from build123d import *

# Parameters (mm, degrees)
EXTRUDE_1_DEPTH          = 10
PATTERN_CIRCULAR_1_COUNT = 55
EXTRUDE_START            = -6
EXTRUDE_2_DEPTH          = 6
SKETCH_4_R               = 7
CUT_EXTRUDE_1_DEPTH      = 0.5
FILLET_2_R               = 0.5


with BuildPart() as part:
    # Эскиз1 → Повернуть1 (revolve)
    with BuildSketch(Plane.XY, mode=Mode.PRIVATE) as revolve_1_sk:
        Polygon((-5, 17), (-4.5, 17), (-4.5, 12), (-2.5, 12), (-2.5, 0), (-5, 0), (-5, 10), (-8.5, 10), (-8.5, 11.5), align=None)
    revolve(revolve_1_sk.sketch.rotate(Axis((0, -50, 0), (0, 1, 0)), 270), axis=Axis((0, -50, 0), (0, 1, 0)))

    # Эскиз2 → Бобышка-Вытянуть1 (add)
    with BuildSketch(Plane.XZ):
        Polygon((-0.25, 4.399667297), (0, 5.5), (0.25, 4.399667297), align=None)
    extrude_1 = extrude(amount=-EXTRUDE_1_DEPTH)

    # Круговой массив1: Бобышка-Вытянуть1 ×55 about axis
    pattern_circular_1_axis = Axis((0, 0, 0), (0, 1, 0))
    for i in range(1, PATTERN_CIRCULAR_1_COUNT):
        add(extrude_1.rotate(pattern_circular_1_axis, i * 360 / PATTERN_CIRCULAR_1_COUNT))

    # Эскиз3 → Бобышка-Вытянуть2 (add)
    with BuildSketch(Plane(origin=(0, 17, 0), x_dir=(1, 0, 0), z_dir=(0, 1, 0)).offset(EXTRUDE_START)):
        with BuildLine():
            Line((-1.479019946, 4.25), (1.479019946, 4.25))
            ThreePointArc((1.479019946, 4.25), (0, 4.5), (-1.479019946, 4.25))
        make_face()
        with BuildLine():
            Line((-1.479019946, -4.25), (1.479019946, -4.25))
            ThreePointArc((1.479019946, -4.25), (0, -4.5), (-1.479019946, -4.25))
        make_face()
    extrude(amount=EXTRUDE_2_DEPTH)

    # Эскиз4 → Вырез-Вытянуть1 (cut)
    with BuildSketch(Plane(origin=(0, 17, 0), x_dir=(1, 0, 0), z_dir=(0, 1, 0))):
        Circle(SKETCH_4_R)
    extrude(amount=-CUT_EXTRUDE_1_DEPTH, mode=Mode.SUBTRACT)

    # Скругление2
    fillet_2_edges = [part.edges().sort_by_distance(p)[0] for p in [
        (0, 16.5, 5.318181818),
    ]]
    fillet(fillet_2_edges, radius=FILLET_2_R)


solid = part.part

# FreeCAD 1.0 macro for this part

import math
import FreeCAD as App
import Part
import Sketcher
Q = App.Units.Quantity


def edges_at(feature, points):
    """Names of the edges that pass closest to the given points."""
    edges = feature.Shape.Edges
    near = lambda p: min(range(len(edges)), key=lambda i: edges[i].distToShape(Part.Vertex(*p))[0])
    return sorted({f"Edge{near(p) + 1}" for p in points})

doc = App.newDocument("Part")
body = doc.addObject("PartDesign::Body", "Body")

# Sketch on XY plane
sketch1 = body.newObject("Sketcher::SketchObject", "Sketch")
sketch1.AttachmentSupport = (doc.getObject("XY_Plane"), [""])
sketch1.MapMode = "FlatFace"
sketch1.addGeometry(Part.LineSegment(App.Vector(-4.5, 17, 0), App.Vector(-5, 17, 0)), False)
sketch1.addGeometry(Part.LineSegment(App.Vector(-5, 17, 0), App.Vector(-8.5, 11.5, 0)), False)
sketch1.addGeometry(Part.LineSegment(App.Vector(-8.5, 11.5, 0), App.Vector(-8.5, 10, 0)), False)
sketch1.addGeometry(Part.LineSegment(App.Vector(-8.5, 10, 0), App.Vector(-5, 10, 0)), False)
sketch1.addGeometry(Part.LineSegment(App.Vector(-5, 10, 0), App.Vector(-5, 0, 0)), False)
sketch1.addGeometry(Part.LineSegment(App.Vector(-5, 0, 0), App.Vector(-2.5, 0, 0)), False)
sketch1.addGeometry(Part.LineSegment(App.Vector(-2.5, 0, 0), App.Vector(-2.5, 12, 0)), False)
sketch1.addGeometry(Part.LineSegment(App.Vector(-2.5, 12, 0), App.Vector(-4.5, 12, 0)), False)
sketch1.addGeometry(Part.LineSegment(App.Vector(-4.5, 12, 0), App.Vector(-4.5, 17, 0)), False)
sketch1.addConstraint(Sketcher.Constraint("Coincident", 0, 2, 1, 1))
sketch1.addConstraint(Sketcher.Constraint("Coincident", 1, 2, 2, 1))
sketch1.addConstraint(Sketcher.Constraint("Coincident", 2, 2, 3, 1))
sketch1.addConstraint(Sketcher.Constraint("Coincident", 3, 2, 4, 1))
sketch1.addConstraint(Sketcher.Constraint("Coincident", 4, 2, 5, 1))
sketch1.addConstraint(Sketcher.Constraint("Coincident", 5, 2, 6, 1))
sketch1.addConstraint(Sketcher.Constraint("Coincident", 6, 2, 7, 1))
sketch1.addConstraint(Sketcher.Constraint("Coincident", 7, 2, 8, 1))
sketch1.addConstraint(Sketcher.Constraint("Coincident", 8, 2, 0, 1))
sketch1.addConstraint(Sketcher.Constraint("Horizontal", 0))
sketch1.addConstraint(Sketcher.Constraint("Vertical", 2))
sketch1.addConstraint(Sketcher.Constraint("Horizontal", 3))
sketch1.addConstraint(Sketcher.Constraint("Vertical", 4))
sketch1.addConstraint(Sketcher.Constraint("Horizontal", 5))
sketch1.addConstraint(Sketcher.Constraint("Vertical", 6))
sketch1.addConstraint(Sketcher.Constraint("Horizontal", 7))
sketch1.addConstraint(Sketcher.Constraint("Vertical", 8))
sketch1.addConstraint(Sketcher.Constraint("PointOnObject", 4, 2, -1))
sketch1.addConstraint(Sketcher.Constraint("Vertical", 0, 2, 3, 2))
sketch1.addConstraint(Sketcher.Constraint("DistanceX", 7, 2, 7, 1, Q("2 mm")))
sketch1.addConstraint(Sketcher.Constraint("DistanceY", 4, 2, 4, 1, Q("10 mm")))
sketch1.addConstraint(Sketcher.Constraint("DistanceY", 6, 1, 6, 2, Q("12 mm")))
sketch1.addConstraint(Sketcher.Constraint("DistanceY", 8, 1, 8, 2, Q("5 mm")))
sketch1.addConstraint(Sketcher.Constraint("DistanceX", 0, 2, 0, 1, Q("0.5 mm")))
sketch1.addConstraint(Sketcher.Constraint("DistanceX", 3, 1, 3, 2, Q("3.5 mm")))
sketch1.addConstraint(Sketcher.Constraint("DistanceY", 2, 2, 2, 1, Q("1.5 mm")))
sketch1.addConstraint(Sketcher.Constraint("DistanceX", 0, 2, -1, 1, Q("5 mm")))
revolution = body.newObject("PartDesign::Revolution", "Revolution")
revolution.Profile = sketch1
revolution.ReferenceAxis = (sketch1, ["V_Axis"])
revolution.Angle = 360

# Sketch on XZ plane
sketch2 = body.newObject("Sketcher::SketchObject", "Sketch001")
sketch2.AttachmentSupport = (doc.getObject("XZ_Plane"), [""])
sketch2.MapMode = "FlatFace"
sketch2.addGeometry(Part.LineSegment(App.Vector(0, 5.5, 0), App.Vector(-0.2, 4.4, 0)), False)
sketch2.addGeometry(Part.LineSegment(App.Vector(-0.2, 4.4, 0), App.Vector(0.2, 4.4, 0)), False)
sketch2.addGeometry(Part.LineSegment(App.Vector(0.2, 4.4, 0), App.Vector(0, 5.5, 0)), False)
sketch2.addConstraint(Sketcher.Constraint("Coincident", 0, 2, 1, 1))
sketch2.addConstraint(Sketcher.Constraint("Coincident", 1, 2, 2, 1))
sketch2.addConstraint(Sketcher.Constraint("Coincident", 2, 2, 0, 1))
sketch2.addConstraint(Sketcher.Constraint("Horizontal", 1))
sketch2.addConstraint(Sketcher.Constraint("PointOnObject", 2, 2, -2))
sketch2.addConstraint(Sketcher.Constraint("Equal", 0, 2))
sketch2.addConstraint(Sketcher.Constraint("DistanceX", 1, 1, 1, 2, Q("0.5 mm")))
sketch2.addConstraint(Sketcher.Constraint("DistanceY", -1, 1, 2, 2, Q("5.5 mm")))
sketch2.addConstraint(Sketcher.Constraint("Distance", 0, Q("1.128376 mm")))
pad1 = body.newObject("PartDesign::Pad", "Pad")
pad1.Profile = sketch2
pad1.Length = 10
pad1.Reversed = True
doc.recompute()

polarpattern = body.newObject("PartDesign::PolarPattern", "PolarPattern")
polarpattern.Originals = [pad1]
polarpattern.Axis = (doc.getObject("Y_Axis"), [""])
polarpattern.Angle = 360
polarpattern.Occurrences = 55
body.Tip = polarpattern

# Sketch on XZ plane
sketch3 = body.newObject("Sketcher::SketchObject", "Sketch002")
sketch3.AttachmentSupport = (doc.getObject("XZ_Plane"), [""])
sketch3.MapMode = "FlatFace"
sketch3.AttachmentOffset = App.Placement(App.Vector(0, 0, -11), App.Rotation())
sketch3.addGeometry(Part.LineSegment(App.Vector(-1.5, -4.2, 0), App.Vector(1.5, -4.2, 0)), False)
sketch3.addGeometry(Part.ArcOfCircle(Part.Circle(App.Vector(0, 0, 0), App.Vector(0, 0, 1), 4.5), math.radians(-109), math.radians(-71)), False)
sketch3.addGeometry(Part.LineSegment(App.Vector(1.5, 4.2, 0), App.Vector(-1.5, 4.2, 0)), False)
sketch3.addGeometry(Part.ArcOfCircle(Part.Circle(App.Vector(0, 0, 0), App.Vector(0, 0, 1), 4.5), math.radians(71), math.radians(109)), False)
sketch3.addConstraint(Sketcher.Constraint("Coincident", 0, 1, 1, 1))
sketch3.addConstraint(Sketcher.Constraint("Coincident", 1, 2, 0, 2))
sketch3.addConstraint(Sketcher.Constraint("Coincident", 2, 1, 3, 1))
sketch3.addConstraint(Sketcher.Constraint("Coincident", 3, 2, 2, 2))
sketch3.addConstraint(Sketcher.Constraint("Horizontal", 0))
sketch3.addConstraint(Sketcher.Constraint("Horizontal", 2))
sketch3.addConstraint(Sketcher.Constraint("Coincident", 1, 3, -1, 1))
sketch3.addConstraint(Sketcher.Constraint("Coincident", 3, 3, -1, 1))
sketch3.addConstraint(Sketcher.Constraint("Equal", 1, 3))
sketch3.addConstraint(Sketcher.Constraint("Vertical", 1, 2, 2, 1))
sketch3.addConstraint(Sketcher.Constraint("Radius", 1, Q("4.5 mm")))
sketch3.addConstraint(Sketcher.Constraint("DistanceY", 1, 2, 2, 1, Q("8.5 mm")))
pad2 = body.newObject("PartDesign::Pad", "Pad001")
pad2.Profile = sketch3
pad2.Length = 6
pad2.Reversed = True

# Sketch on XZ plane
sketch4 = body.newObject("Sketcher::SketchObject", "Sketch003")
sketch4.AttachmentSupport = (doc.getObject("XZ_Plane"), [""])
sketch4.MapMode = "FlatFace"
sketch4.AttachmentOffset = App.Placement(App.Vector(0, 0, -17), App.Rotation())
sketch4.addGeometry(Part.Circle(App.Vector(0, 0, 0), App.Vector(0, 0, 1), 7), False)
sketch4.addConstraint(Sketcher.Constraint("Coincident", 0, 3, -1, 1))
sketch4.addConstraint(Sketcher.Constraint("Diameter", 0, Q("14 mm")))
pocket1 = body.newObject("PartDesign::Pocket", "Pocket")
pocket1.Profile = sketch4
pocket1.Length = 0.5
pocket1.Reversed = True
doc.recompute()

fillet = body.newObject("PartDesign::Fillet", "Fillet")
fillet.Base = (pocket1, edges_at(pocket1, [(0, 16.5, 5.318)]))
fillet.Radius = 0.5

doc.recompute()
